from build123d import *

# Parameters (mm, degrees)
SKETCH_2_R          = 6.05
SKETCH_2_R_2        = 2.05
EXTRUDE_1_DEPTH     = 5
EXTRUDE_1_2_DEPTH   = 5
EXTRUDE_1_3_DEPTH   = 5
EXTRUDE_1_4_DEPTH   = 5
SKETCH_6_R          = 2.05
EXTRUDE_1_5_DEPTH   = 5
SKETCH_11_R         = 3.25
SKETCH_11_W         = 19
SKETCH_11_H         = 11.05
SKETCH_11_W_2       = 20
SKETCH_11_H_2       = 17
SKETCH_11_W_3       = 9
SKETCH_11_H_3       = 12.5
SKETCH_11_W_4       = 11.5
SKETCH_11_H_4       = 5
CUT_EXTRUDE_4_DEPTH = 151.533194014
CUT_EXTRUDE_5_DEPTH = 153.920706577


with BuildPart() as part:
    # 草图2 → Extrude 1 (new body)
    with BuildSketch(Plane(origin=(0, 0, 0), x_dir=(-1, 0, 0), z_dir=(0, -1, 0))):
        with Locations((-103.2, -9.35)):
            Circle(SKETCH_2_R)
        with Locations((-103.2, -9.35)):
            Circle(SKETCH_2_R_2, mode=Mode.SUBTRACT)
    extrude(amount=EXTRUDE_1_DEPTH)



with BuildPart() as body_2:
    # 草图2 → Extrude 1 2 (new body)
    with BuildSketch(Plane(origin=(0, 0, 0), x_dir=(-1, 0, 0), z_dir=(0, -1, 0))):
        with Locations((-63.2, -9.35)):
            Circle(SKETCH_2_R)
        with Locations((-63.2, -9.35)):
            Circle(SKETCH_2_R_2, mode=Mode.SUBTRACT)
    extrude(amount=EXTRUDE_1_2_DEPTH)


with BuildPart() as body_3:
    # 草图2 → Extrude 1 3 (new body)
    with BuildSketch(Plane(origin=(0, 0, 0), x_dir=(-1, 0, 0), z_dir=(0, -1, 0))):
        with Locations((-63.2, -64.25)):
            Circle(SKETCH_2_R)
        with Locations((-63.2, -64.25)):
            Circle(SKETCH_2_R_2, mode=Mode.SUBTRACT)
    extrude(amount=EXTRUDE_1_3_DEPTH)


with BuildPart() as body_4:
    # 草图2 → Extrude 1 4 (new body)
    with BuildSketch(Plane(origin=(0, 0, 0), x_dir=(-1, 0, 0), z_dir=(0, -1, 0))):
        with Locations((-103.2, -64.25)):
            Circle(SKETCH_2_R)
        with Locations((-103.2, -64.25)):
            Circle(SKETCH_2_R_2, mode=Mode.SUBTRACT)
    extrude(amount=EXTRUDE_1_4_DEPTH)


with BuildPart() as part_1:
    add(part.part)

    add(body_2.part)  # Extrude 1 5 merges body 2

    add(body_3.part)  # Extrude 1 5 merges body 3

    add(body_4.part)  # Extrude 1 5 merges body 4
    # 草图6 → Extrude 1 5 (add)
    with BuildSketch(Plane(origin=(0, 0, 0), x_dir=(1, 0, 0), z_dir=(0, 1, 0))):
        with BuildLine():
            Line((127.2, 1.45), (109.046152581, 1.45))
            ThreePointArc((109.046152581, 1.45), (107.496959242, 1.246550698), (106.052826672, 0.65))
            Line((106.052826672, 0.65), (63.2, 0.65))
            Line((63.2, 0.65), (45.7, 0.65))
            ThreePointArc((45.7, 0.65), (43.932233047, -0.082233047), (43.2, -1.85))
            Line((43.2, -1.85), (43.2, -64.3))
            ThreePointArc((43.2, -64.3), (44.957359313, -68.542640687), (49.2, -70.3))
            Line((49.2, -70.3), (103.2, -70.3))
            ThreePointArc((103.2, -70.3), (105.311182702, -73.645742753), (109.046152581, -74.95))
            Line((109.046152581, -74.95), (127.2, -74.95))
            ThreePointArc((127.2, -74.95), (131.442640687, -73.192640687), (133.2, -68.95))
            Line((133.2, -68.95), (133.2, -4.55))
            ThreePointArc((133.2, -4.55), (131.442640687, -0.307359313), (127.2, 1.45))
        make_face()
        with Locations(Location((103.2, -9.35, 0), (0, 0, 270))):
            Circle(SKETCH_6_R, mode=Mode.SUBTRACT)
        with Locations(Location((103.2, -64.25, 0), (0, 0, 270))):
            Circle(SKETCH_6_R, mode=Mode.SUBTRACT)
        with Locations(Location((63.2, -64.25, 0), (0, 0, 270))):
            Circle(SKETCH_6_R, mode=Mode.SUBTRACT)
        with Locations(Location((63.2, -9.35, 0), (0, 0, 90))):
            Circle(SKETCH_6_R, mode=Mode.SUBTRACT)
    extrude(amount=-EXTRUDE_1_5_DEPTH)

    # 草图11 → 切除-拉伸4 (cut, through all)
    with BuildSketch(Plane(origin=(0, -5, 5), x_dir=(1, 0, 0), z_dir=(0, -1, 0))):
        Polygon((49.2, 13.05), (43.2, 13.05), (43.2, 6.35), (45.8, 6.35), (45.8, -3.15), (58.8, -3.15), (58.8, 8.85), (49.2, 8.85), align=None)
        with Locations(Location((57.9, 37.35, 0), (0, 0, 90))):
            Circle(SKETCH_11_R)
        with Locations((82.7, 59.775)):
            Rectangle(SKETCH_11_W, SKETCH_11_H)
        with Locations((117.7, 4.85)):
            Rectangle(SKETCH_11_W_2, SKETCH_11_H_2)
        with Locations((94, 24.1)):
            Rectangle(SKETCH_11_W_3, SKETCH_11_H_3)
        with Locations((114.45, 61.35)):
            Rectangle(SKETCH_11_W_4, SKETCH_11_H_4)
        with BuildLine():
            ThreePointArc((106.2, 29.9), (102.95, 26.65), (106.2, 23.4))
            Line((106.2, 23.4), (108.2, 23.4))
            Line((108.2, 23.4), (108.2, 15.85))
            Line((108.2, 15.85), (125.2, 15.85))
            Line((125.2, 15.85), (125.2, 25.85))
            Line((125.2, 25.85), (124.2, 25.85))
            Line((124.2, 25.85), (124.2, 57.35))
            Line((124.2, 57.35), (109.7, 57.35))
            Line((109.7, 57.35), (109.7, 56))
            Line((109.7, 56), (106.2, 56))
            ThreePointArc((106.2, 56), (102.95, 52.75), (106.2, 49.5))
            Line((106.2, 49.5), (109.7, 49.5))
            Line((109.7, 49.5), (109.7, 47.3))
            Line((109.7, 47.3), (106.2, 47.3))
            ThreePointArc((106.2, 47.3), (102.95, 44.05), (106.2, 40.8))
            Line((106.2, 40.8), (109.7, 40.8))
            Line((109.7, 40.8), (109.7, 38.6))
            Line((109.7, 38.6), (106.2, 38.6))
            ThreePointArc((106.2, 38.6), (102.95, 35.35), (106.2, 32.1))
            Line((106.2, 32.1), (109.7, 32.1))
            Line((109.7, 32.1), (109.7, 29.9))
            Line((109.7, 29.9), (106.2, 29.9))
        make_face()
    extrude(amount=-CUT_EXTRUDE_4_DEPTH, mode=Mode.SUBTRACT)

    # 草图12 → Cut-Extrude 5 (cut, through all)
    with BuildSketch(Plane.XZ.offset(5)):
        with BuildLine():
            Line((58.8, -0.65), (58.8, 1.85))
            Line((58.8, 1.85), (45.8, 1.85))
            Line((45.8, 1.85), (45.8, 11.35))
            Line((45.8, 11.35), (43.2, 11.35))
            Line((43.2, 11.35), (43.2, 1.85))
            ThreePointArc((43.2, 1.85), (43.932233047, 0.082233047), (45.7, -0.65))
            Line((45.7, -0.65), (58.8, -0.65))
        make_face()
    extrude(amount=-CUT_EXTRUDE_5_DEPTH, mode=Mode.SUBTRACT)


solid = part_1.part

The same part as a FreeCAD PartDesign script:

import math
import FreeCAD as App
import Part
import Sketcher


def add_polygon(sketch, points):
    """Adds a closed chain of lines whose ends are joined by coincident constraints."""
    first, n = sketch.GeometryCount, len(points)
    for a, b in zip(points, points[1:] + points[:1]):
        sketch.addGeometry(Part.LineSegment(App.Vector(*a, 0), App.Vector(*b, 0)), False)
    for i in range(n):
        sketch.addConstraint(Sketcher.Constraint("Coincident", first + i, 2, first + (i + 1) % n, 1))

doc = App.newDocument("Part")
params = doc.addObject("Spreadsheet::Sheet", "Params")
for row, (alias, value) in enumerate([
    ("sketch1_diameter", "12.1 mm"),
    ("sketch1_diameter2", "4.1 mm"),
    ("pad1_length", "5 mm"),
    ("sketch2_diameter", "12.1 mm"),
    ("sketch2_diameter2", "4.1 mm"),
    ("pad2_length", "5 mm"),
    ("sketch3_diameter", "12.1 mm"),
    ("sketch3_diameter2", "4.1 mm"),
    ("pad3_length", "5 mm"),
    ("sketch4_diameter", "12.1 mm"),
    ("sketch4_diameter2", "4.1 mm"),
    ("pad4_length", "5 mm"),
    ("sketch5_radius", "6 mm"),
    ("sketch5_diameter", "4.1 mm"),
    ("sketch5_radius2", "2.5 mm"),
    ("sketch5_width", "54 mm"),
    ("sketch5_height", "64.4 mm"),
    ("pad5_length", "5 mm"),
    ("sketch6_diameter", "6.5 mm"),
    ("sketch6_width", "6 mm"),
    ("sketch6_width2", "13 mm"),
    ("sketch6_width3", "19 mm"),
    ("sketch6_width4", "20 mm"),
    ("sketch7_radius", "2.5 mm"),
    ("sketch7_width", "13 mm"),
    ("sketch7_width2", "2.6 mm"),
    ("sketch7_height", "9.5 mm"),
], start=1):
    params.set(f"A{row}", alias)
    params.set(f"B{row}", "=" + value)
    params.setAlias(f"B{row}", alias)

body = doc.addObject("PartDesign::Body", "Body")

# Sketch on XZ plane
sketch1 = body.newObject("Sketcher::SketchObject", "Sketch")
sketch1.AttachmentSupport = (doc.getObject("XZ_Plane"), [""])
sketch1.MapMode = "FlatFace"
sketch1.addGeometry([
    Part.Circle(App.Vector(103.2, 9.35, 0), App.Vector(0, 0, 1), 6.05),
    Part.Circle(App.Vector(103.2, 9.35, 0), App.Vector(0, 0, 1), 2.05),
], False)
sketch1.addConstraint([
    Sketcher.Constraint("Coincident", 1, 3, 0, 3),
    Sketcher.Constraint("Diameter", 0, 12.1),
    Sketcher.Constraint("Diameter", 1, 4.1),
    Sketcher.Constraint("DistanceX", -1, 1, 0, 3, 103.2),
    Sketcher.Constraint("DistanceY", -1, 1, 0, 3, 9.35),
])
sketch1.setExpression("Constraints[1]", "Params.sketch1_diameter")
sketch1.setExpression("Constraints[2]", "Params.sketch1_diameter2")
pad1 = body.newObject("PartDesign::Pad", "Pad")
pad1.Profile = sketch1
pad1.setExpression("Length", "Params.pad1_length")
body2 = doc.addObject("PartDesign::Body", "Body001")

# Sketch on XZ plane
sketch2 = body2.newObject("Sketcher::SketchObject", "Sketch001")
sketch2.AttachmentSupport = (doc.getObject("XZ_Plane001"), [""])
sketch2.MapMode = "FlatFace"
sketch2.addGeometry([
    Part.Circle(App.Vector(63.2, 9.35, 0), App.Vector(0, 0, 1), 6.05),
    Part.Circle(App.Vector(63.2, 9.35, 0), App.Vector(0, 0, 1), 2.05),
], False)
sketch2.addConstraint([
    Sketcher.Constraint("Coincident", 1, 3, 0, 3),
    Sketcher.Constraint("Diameter", 0, 12.1),
    Sketcher.Constraint("Diameter", 1, 4.1),
    Sketcher.Constraint("DistanceX", -1, 1, 0, 3, 63.2),
    Sketcher.Constraint("DistanceY", -1, 1, 0, 3, 9.35),
])
sketch2.setExpression("Constraints[1]", "Params.sketch2_diameter")
sketch2.setExpression("Constraints[2]", "Params.sketch2_diameter2")
pad2 = body2.newObject("PartDesign::Pad", "Pad001")
pad2.Profile = sketch2
pad2.setExpression("Length", "Params.pad2_length")
body3 = doc.addObject("PartDesign::Body", "Body002")

# Sketch on XZ plane
sketch3 = body3.newObject("Sketcher::SketchObject", "Sketch002")
sketch3.AttachmentSupport = (doc.getObject("XZ_Plane002"), [""])
sketch3.MapMode = "FlatFace"
sketch3.addGeometry([
    Part.Circle(App.Vector(63.2, 64.25, 0), App.Vector(0, 0, 1), 6.05),
    Part.Circle(App.Vector(63.2, 64.25, 0), App.Vector(0, 0, 1), 2.05),
], False)
sketch3.addConstraint([
    Sketcher.Constraint("Coincident", 1, 3, 0, 3),
    Sketcher.Constraint("Diameter", 0, 12.1),
    Sketcher.Constraint("Diameter", 1, 4.1),
    Sketcher.Constraint("DistanceX", -1, 1, 0, 3, 63.2),
    Sketcher.Constraint("DistanceY", -1, 1, 0, 3, 64.25),
])
sketch3.setExpression("Constraints[1]", "Params.sketch3_diameter")
sketch3.setExpression("Constraints[2]", "Params.sketch3_diameter2")
pad3 = body3.newObject("PartDesign::Pad", "Pad002")
pad3.Profile = sketch3
pad3.setExpression("Length", "Params.pad3_length")
body4 = doc.addObject("PartDesign::Body", "Body003")

# Sketch on XZ plane
sketch4 = body4.newObject("Sketcher::SketchObject", "Sketch003")
sketch4.AttachmentSupport = (doc.getObject("XZ_Plane003"), [""])
sketch4.MapMode = "FlatFace"
sketch4.addGeometry([
    Part.Circle(App.Vector(103.2, 64.25, 0), App.Vector(0, 0, 1), 6.05),
    Part.Circle(App.Vector(103.2, 64.25, 0), App.Vector(0, 0, 1), 2.05),
], False)
sketch4.addConstraint([
    Sketcher.Constraint("Coincident", 1, 3, 0, 3),
    Sketcher.Constraint("Diameter", 0, 12.1),
    Sketcher.Constraint("Diameter", 1, 4.1),
    Sketcher.Constraint("DistanceX", -1, 1, 0, 3, 103.2),
    Sketcher.Constraint("DistanceY", -1, 1, 0, 3, 64.25),
])
sketch4.setExpression("Constraints[1]", "Params.sketch4_diameter")
sketch4.setExpression("Constraints[2]", "Params.sketch4_diameter2")
pad4 = body4.newObject("PartDesign::Pad", "Pad003")
pad4.Profile = sketch4
pad4.setExpression("Length", "Params.pad4_length")
body.AllowCompound = True
doc.recompute()

boolean = body.newObject("PartDesign::Boolean", "Boolean")
boolean.Type = "Fuse"
boolean.addObjects([body2])
doc.recompute()

boolean2 = body.newObject("PartDesign::Boolean", "Boolean001")
boolean2.Type = "Fuse"
boolean2.addObjects([body3])
doc.recompute()

boolean3 = body.newObject("PartDesign::Boolean", "Boolean002")
boolean3.Type = "Fuse"
boolean3.addObjects([body4])

# Sketch on XZ plane
sketch5 = body.newObject("Sketcher::SketchObject", "Sketch004")
sketch5.AttachmentSupport = (doc.getObject("XZ_Plane"), [""])
sketch5.MapMode = "FlatFace"
sketch5.addGeometry([
    Part.LineSegment(App.Vector(127.2, -1.45, 0), App.Vector(109.046153, -1.45, 0)),  # 0
    Part.ArcOfCircle(Part.Circle(App.Vector(109.046153, 4.55, 0), App.Vector(0, 0, 1), 6), math.radians(-119.926435), math.radians(-90)),  # 1
    Part.LineSegment(App.Vector(106.052827, -0.65, 0), App.Vector(45.7, -0.65, 0)),  # 2
    Part.ArcOfCircle(Part.Circle(App.Vector(45.7, 1.85, 0), App.Vector(0, 0, 1), 2.5), math.radians(180), math.radians(270)),  # 3
    Part.LineSegment(App.Vector(43.2, 1.85, 0), App.Vector(43.2, 64.3, 0)),  # 4
    Part.ArcOfCircle(Part.Circle(App.Vector(49.2, 64.3, 0), App.Vector(0, 0, 1), 6), math.radians(90), math.radians(180)),  # 5
    Part.LineSegment(App.Vector(49.2, 70.3, 0), App.Vector(103.2, 70.3, 0)),  # 6
    Part.ArcOfCircle(Part.Circle(App.Vector(109.046153, 68.95, 0), App.Vector(0, 0, 1), 6), math.radians(90), math.radians(166.997122)),  # 7
    Part.LineSegment(App.Vector(109.046153, 74.95, 0), App.Vector(127.2, 74.95, 0)),  # 8
    Part.ArcOfCircle(Part.Circle(App.Vector(127.2, 68.95, 0), App.Vector(0, 0, 1), 6), math.radians(0), math.radians(90)),  # 9
    Part.LineSegment(App.Vector(133.2, 68.95, 0), App.Vector(133.2, 4.55, 0)),  # 10
    Part.ArcOfCircle(Part.Circle(App.Vector(127.2, 4.55, 0), App.Vector(0, 0, 1), 6), math.radians(-90), math.radians(0)),  # 11
    Part.Circle(App.Vector(63.2, 64.25, 0), App.Vector(0, 0, 1), 2.05),  # 12
    Part.Circle(App.Vector(103.2, 64.25, 0), App.Vector(0, 0, 1), 2.05),  # 13
    Part.Circle(App.Vector(63.2, 9.35, 0), App.Vector(0, 0, 1), 2.05),  # 14
    Part.Circle(App.Vector(103.2, 9.35, 0), App.Vector(0, 0, 1), 2.05),  # 15
], False)
sketch5.addConstraint([
    Sketcher.Constraint("Tangent", 0, 2, 1, 2),
    Sketcher.Constraint("Coincident", 1, 1, 2, 1),
    Sketcher.Constraint("Tangent", 2, 2, 3, 2),
    Sketcher.Constraint("Tangent", 3, 1, 4, 1),
    Sketcher.Constraint("Tangent", 4, 2, 5, 2),
    Sketcher.Constraint("Tangent", 5, 1, 6, 1),
    Sketcher.Constraint("Coincident", 6, 2, 7, 2),
    Sketcher.Constraint("Tangent", 7, 1, 8, 1),
    Sketcher.Constraint("Tangent", 8, 2, 9, 2),
    Sketcher.Constraint("Tangent", 9, 1, 10, 1),
    Sketcher.Constraint("Tangent", 10, 2, 11, 2),
    Sketcher.Constraint("Tangent", 11, 1, 0, 1),
    Sketcher.Constraint("Horizontal", 0),
    Sketcher.Constraint("Horizontal", 2),
    Sketcher.Constraint("Vertical", 4),
    Sketcher.Constraint("Horizontal", 6),
    Sketcher.Constraint("Horizontal", 8),
    Sketcher.Constraint("Vertical", 10),
    Sketcher.Constraint("Equal", 1, 5),
    Sketcher.Constraint("Equal", 5, 7),
    Sketcher.Constraint("Equal", 7, 9),
    Sketcher.Constraint("Equal", 9, 11),
    Sketcher.Constraint("Equal", 12, 13),
    Sketcher.Constraint("Equal", 13, 14),
    Sketcher.Constraint("Equal", 14, 15),
    Sketcher.Constraint("Horizontal", 12, 3, 13, 3),
    Sketcher.Constraint("Horizontal", 14, 3, 15, 3),
    Sketcher.Constraint("Vertical", 1, 3, 7, 3),
    Sketcher.Constraint("Vertical", 12, 3, 14, 3),
    Sketcher.Constraint("Vertical", 13, 3, 15, 3),
    Sketcher.Constraint("Vertical", 15, 3, 6, 2),
    Sketcher.Constraint("Radius", 1, 6.0),
    Sketcher.Constraint("Diameter", 12, 4.1),
    Sketcher.Constraint("Radius", 3, 2.5),
    Sketcher.Constraint("DistanceX", 6, 1, 6, 2, 54.0),
    Sketcher.Constraint("DistanceY", 10, 2, 10, 1, 64.4),
    Sketcher.Constraint("DistanceX", 5, 3, 9, 3, 78.0),
    Sketcher.Constraint("DistanceX", 5, 3, 12, 3, 14.0),
    Sketcher.Constraint("DistanceY", 1, 1, 15, 3, 10.0),
    Sketcher.Constraint("DistanceY", 4, 1, 4, 2, 62.45),
    Sketcher.Constraint("DistanceX", -1, 1, 3, 3, 45.7),
    Sketcher.Constraint("DistanceY", -1, 1, 5, 3, 64.3),
    Sketcher.Constraint("DistanceY", 3, 3, 1, 3, 2.7),
    Sketcher.Constraint("DistanceY", 12, 3, 7, 3, 4.7),
])
sketch5.setExpression("Constraints[31]", "Params.sketch5_radius")
sketch5.setExpression("Constraints[32]", "Params.sketch5_diameter")
sketch5.setExpression("Constraints[33]", "Params.sketch5_radius2")
sketch5.setExpression("Constraints[34]", "Params.sketch5_width")
sketch5.setExpression("Constraints[35]", "Params.sketch5_height")
pad5 = body.newObject("PartDesign::Pad", "Pad004")
pad5.Profile = sketch5
pad5.setExpression("Length", "Params.pad5_length")

# Sketch on XZ plane
sketch6 = body.newObject("Sketcher::SketchObject", "Sketch005")
sketch6.AttachmentSupport = (doc.getObject("XZ_Plane"), [""])
sketch6.MapMode = "FlatFace"
sketch6.AttachmentOffset = App.Placement(App.Vector(0, 0, 5), App.Rotation())
add_polygon(sketch6, [(49.2, 18.05), (43.2, 18.05), (43.2, 11.35), (45.8, 11.35), (45.8, 1.85), (58.8, 1.85), (58.8, 13.85), (49.2, 13.85)])  # lines 0-7
sketch6.addGeometry(Part.Circle(App.Vector(57.9, 42.35, 0), App.Vector(0, 0, 1), 3.25), False)  # 8
add_polygon(sketch6, [(73.2, 70.3), (73.2, 59.25), (92.2, 59.25), (92.2, 70.3)])  # lines 9-12
add_polygon(sketch6, [(107.7, 18.35), (107.7, 1.35), (127.7, 1.35), (127.7, 18.35)])  # lines 13-16
add_polygon(sketch6, [(89.5, 35.35), (89.5, 22.85), (98.5, 22.85), (98.5, 35.35)])  # lines 17-20
add_polygon(sketch6, [(108.7, 68.85), (108.7, 63.85), (120.2, 63.85), (120.2, 68.85)])  # lines 21-24
sketch6.addGeometry(Part.ArcOfCircle(Part.Circle(App.Vector(106.2, 31.65, 0), App.Vector(0, 0, 1), 3.25), math.radians(90), math.radians(270)), False)  # 25
sketch6.addGeometry(Part.LineSegment(App.Vector(106.2, 28.4, 0), App.Vector(108.2, 28.4, 0)), False)  # 26
sketch6.addGeometry(Part.LineSegment(App.Vector(108.2, 28.4, 0), App.Vector(108.2, 20.85, 0)), False)  # 27
sketch6.addGeometry(Part.LineSegment(App.Vector(108.2, 20.85, 0), App.Vector(125.2, 20.85, 0)), False)  # 28
sketch6.addGeometry(Part.LineSegment(App.Vector(125.2, 20.85, 0), App.Vector(125.2, 30.85, 0)), False)  # 29
sketch6.addGeometry(Part.LineSegment(App.Vector(125.2, 30.85, 0), App.Vector(124.2, 30.85, 0)), False)  # 30
sketch6.addGeometry(Part.LineSegment(App.Vector(124.2, 30.85, 0), App.Vector(124.2, 62.35, 0)), False)  # 31
sketch6.addGeometry(Part.LineSegment(App.Vector(124.2, 62.35, 0), App.Vector(109.7, 62.35, 0)), False)  # 32
sketch6.addGeometry(Part.LineSegment(App.Vector(109.7, 62.35, 0), App.Vector(109.7, 61, 0)), False)  # 33
sketch6.addGeometry(Part.LineSegment(App.Vector(109.7, 61, 0), App.Vector(106.2, 61, 0)), False)  # 34
sketch6.addGeometry(Part.ArcOfCircle(Part.Circle(App.Vector(106.2, 57.75, 0), App.Vector(0, 0, 1), 3.25), math.radians(90), math.radians(270)), False)  # 35
sketch6.addGeometry(Part.LineSegment(App.Vector(106.2, 54.5, 0), App.Vector(109.7, 54.5, 0)), False)  # 36
sketch6.addGeometry(Part.LineSegment(App.Vector(109.7, 54.5, 0), App.Vector(109.7, 52.3, 0)), False)  # 37
sketch6.addGeometry(Part.LineSegment(App.Vector(109.7, 52.3, 0), App.Vector(106.2, 52.3, 0)), False)  # 38
sketch6.addGeometry(Part.ArcOfCircle(Part.Circle(App.Vector(106.2, 49.05, 0), App.Vector(0, 0, 1), 3.25), math.radians(90), math.radians(270)), False)  # 39
sketch6.addGeometry(Part.LineSegment(App.Vector(106.2, 45.8, 0), App.Vector(109.7, 45.8, 0)), False)  # 40
sketch6.addGeometry(Part.LineSegment(App.Vector(109.7, 45.8, 0), App.Vector(109.7, 43.6, 0)), False)  # 41
sketch6.addGeometry(Part.LineSegment(App.Vector(109.7, 43.6, 0), App.Vector(106.2, 43.6, 0)), False)  # 42
sketch6.addGeometry(Part.ArcOfCircle(Part.Circle(App.Vector(106.2, 40.35, 0), App.Vector(0, 0, 1), 3.25), math.radians(90), math.radians(270)), False)  # 43
sketch6.addGeometry(Part.LineSegment(App.Vector(106.2, 37.1, 0), App.Vector(109.7, 37.1, 0)), False)  # 44
sketch6.addGeometry(Part.LineSegment(App.Vector(109.7, 37.1, 0), App.Vector(109.7, 34.9, 0)), False)  # 45
sketch6.addGeometry(Part.LineSegment(App.Vector(109.7, 34.9, 0), App.Vector(106.2, 34.9, 0)), False)  # 46
sketch6.addConstraint([
    Sketcher.Constraint("Tangent", 25, 2, 26, 1),
    Sketcher.Constraint("Coincident", 26, 2, 27, 1),
    Sketcher.Constraint("Coincident", 27, 2, 28, 1),
    Sketcher.Constraint("Coincident", 28, 2, 29, 1),
    Sketcher.Constraint("Coincident", 29, 2, 30, 1),
    Sketcher.Constraint("Coincident", 30, 2, 31, 1),
    Sketcher.Constraint("Coincident", 31, 2, 32, 1),
    Sketcher.Constraint("Coincident", 32, 2, 33, 1),
    Sketcher.Constraint("Coincident", 33, 2, 34, 1),
    Sketcher.Constraint("Tangent", 34, 2, 35, 1),
    Sketcher.Constraint("Tangent", 35, 2, 36, 1),
    Sketcher.Constraint("Coincident", 36, 2, 37, 1),
    Sketcher.Constraint("Coincident", 37, 2, 38, 1),
    Sketcher.Constraint("Tangent", 38, 2, 39, 1),
    Sketcher.Constraint("Tangent", 39, 2, 40, 1),
    Sketcher.Constraint("Coincident", 40, 2, 41, 1),
    Sketcher.Constraint("Coincident", 41, 2, 42, 1),
    Sketcher.Constraint("Tangent", 42, 2, 43, 1),
    Sketcher.Constraint("Tangent", 43, 2, 44, 1),
    Sketcher.Constraint("Coincident", 44, 2, 45, 1),
    Sketcher.Constraint("Coincident", 45, 2, 46, 1),
    Sketcher.Constraint("Tangent", 46, 2, 25, 1),
    Sketcher.Constraint("Horizontal", 0),
    Sketcher.Constraint("Vertical", 1),
    Sketcher.Constraint("Horizontal", 2),
    Sketcher.Constraint("Vertical", 3),
    Sketcher.Constraint("Horizontal", 4),
    Sketcher.Constraint("Vertical", 5),
    Sketcher.Constraint("Horizontal", 6),
    Sketcher.Constraint("Vertical", 7),
    Sketcher.Constraint("Vertical", 9),
    Sketcher.Constraint("Horizontal", 10),
    Sketcher.Constraint("Vertical", 11),
    Sketcher.Constraint("Horizontal", 12),
    Sketcher.Constraint("Vertical", 13),
    Sketcher.Constraint("Horizontal", 14),
    Sketcher.Constraint("Vertical", 15),
    Sketcher.Constraint("Horizontal", 16),
    Sketcher.Constraint("Vertical", 17),
    Sketcher.Constraint("Horizontal", 18),
    Sketcher.Constraint("Vertical", 19),
    Sketcher.Constraint("Horizontal", 20),
    Sketcher.Constraint("Vertical", 21),
    Sketcher.Constraint("Horizontal", 22),
    Sketcher.Constraint("Vertical", 23),
    Sketcher.Constraint("Horizontal", 24),
    Sketcher.Constraint("Horizontal", 26),
    Sketcher.Constraint("Vertical", 27),
    Sketcher.Constraint("Horizontal", 28),
    Sketcher.Constraint("Vertical", 29),
    Sketcher.Constraint("Horizontal", 30),
    Sketcher.Constraint("Vertical", 31),
    Sketcher.Constraint("Horizontal", 32),
    Sketcher.Constraint("Vertical", 33),
    Sketcher.Constraint("Horizontal", 34),
    Sketcher.Constraint("Horizontal", 36),
    Sketcher.Constraint("Vertical", 37),
    Sketcher.Constraint("Horizontal", 38),
    Sketcher.Constraint("Horizontal", 40),
    Sketcher.Constraint("Vertical", 41),
    Sketcher.Constraint("Horizontal", 42),
    Sketcher.Constraint("Horizontal", 44),
    Sketcher.Constraint("Vertical", 45),
    Sketcher.Constraint("Horizontal", 46),
    Sketcher.Constraint("Equal", 8, 25),
    Sketcher.Constraint("Equal", 25, 35),
    Sketcher.Constraint("Equal", 35, 39),
    Sketcher.Constraint("Equal", 39, 43),
    Sketcher.Constraint("Vertical", 25, 3, 35, 3),
    Sketcher.Constraint("Vertical", 35, 3, 39, 3),
    Sketcher.Constraint("Vertical", 39, 3, 43, 3),
    Sketcher.Constraint("Vertical", 33, 2, 36, 2),
    Sketcher.Constraint("Vertical", 37, 2, 40, 2),
    Sketcher.Constraint("Vertical", 41, 2, 44, 2),
    Sketcher.Constraint("Equal", 28, 13),
    Sketcher.Constraint("Equal", 37, 41),
    Sketcher.Constraint("Equal", 41, 45),
    Sketcher.Constraint("Diameter", 8, 6.5),
    Sketcher.Constraint("DistanceX", 0, 2, 0, 1, 6.0),
    Sketcher.Constraint("DistanceX", 4, 1, 4, 2, 13.0),
    Sketcher.Constraint("DistanceX", 10, 1, 10, 2, 19.0),
    Sketcher.Constraint("DistanceX", 14, 1, 14, 2, 20.0),
    Sketcher.Constraint("DistanceX", 18, 1, 18, 2, 9.0),
    Sketcher.Constraint("DistanceX", 26, 1, 26, 2, 2.0),
    Sketcher.Constraint("DistanceX", 28, 1, 28, 2, 17.0),
    Sketcher.Constraint("DistanceX", 30, 2, 30, 1, 1.0),
    Sketcher.Constraint("DistanceY", 5, 1, 5, 2, 12.0),
    Sketcher.Constraint("DistanceY", 21, 2, 21, 1, 5.0),
    Sketcher.Constraint("DistanceY", 29, 1, 29, 2, 10.0),
    Sketcher.Constraint("DistanceX", 2, 1, 2, 2, 2.6),
    Sketcher.Constraint("DistanceX", 22, 1, 22, 2, 11.5),
    Sketcher.Constraint("DistanceX", 32, 2, 32, 1, 14.5),
    Sketcher.Constraint("DistanceY", 1, 2, 1, 1, 6.7),
    Sketcher.Constraint("DistanceY", 3, 2, 3, 1, 9.5),
    Sketcher.Constraint("DistanceY", 17, 2, 17, 1, 12.5),
    Sketcher.Constraint("DistanceY", 31, 1, 31, 2, 31.5),
    Sketcher.Constraint("DistanceY", 37, 2, 37, 1, 2.2),
    Sketcher.Constraint("DistanceY", -1, 1, 33, 2, 61.0),
    Sketcher.Constraint("DistanceY", 43, 3, 8, 3, 2.0),
    Sketcher.Constraint("DistanceX", 0, 2, 25, 3, 63.0),
    Sketcher.Constraint("DistanceY", 0, 2, 39, 3, 31.0),
    Sketcher.Constraint("DistanceX", 9, 2, 35, 3, 33.0),
    Sketcher.Constraint("DistanceY", 13, 2, 43, 3, 39.0),
    Sketcher.Constraint("DistanceY", 19, 2, 43, 3, 5.0),
    Sketcher.Constraint("DistanceX", 35, 3, 22, 2, 14.0),
    Sketcher.Constraint("DistanceY", 27, 2, 18, 2, 2.0),
    Sketcher.Constraint("DistanceY", 9, 2, 9, 1, 11.05),
    Sketcher.Constraint("DistanceX", -1, 1, 8, 3, 57.9),
    Sketcher.Constraint("DistanceX", -1, 1, 25, 3, 106.2),
    Sketcher.Constraint("DistanceY", -1, 1, 11, 2, 70.3),
    Sketcher.Constraint("DistanceX", -1, 1, 13, 2, 107.7),
    Sketcher.Constraint("DistanceX", -1, 1, 17, 2, 89.5),
    Sketcher.Constraint("DistanceY", 35, 3, 21, 2, 6.1),
])
sketch6.setExpression("Constraints[101]", "Params.sketch6_diameter")
sketch6.setExpression("Constraints[102]", "Params.sketch6_width")
sketch6.setExpression("Constraints[103]", "Params.sketch6_width2")
sketch6.setExpression("Constraints[104]", "Params.sketch6_width3")
sketch6.setExpression("Constraints[105]", "Params.sketch6_width4")
pocket1 = body.newObject("PartDesign::Pocket", "Pocket")
pocket1.Profile = sketch6
pocket1.Type = "ThroughAll"

# Sketch on XZ plane
sketch7 = body.newObject("Sketcher::SketchObject", "Sketch006")
sketch7.AttachmentSupport = (doc.getObject("XZ_Plane"), [""])
sketch7.MapMode = "FlatFace"
sketch7.AttachmentOffset = App.Placement(App.Vector(0, 0, 5), App.Rotation())
sketch7.addGeometry([
    Part.LineSegment(App.Vector(58.8, -0.65, 0), App.Vector(58.8, 1.85, 0)),  # 0
    Part.LineSegment(App.Vector(58.8, 1.85, 0), App.Vector(45.8, 1.85, 0)),  # 1
    Part.LineSegment(App.Vector(45.8, 1.85, 0), App.Vector(45.8, 11.35, 0)),  # 2
    Part.LineSegment(App.Vector(45.8, 11.35, 0), App.Vector(43.2, 11.35, 0)),  # 3
    Part.LineSegment(App.Vector(43.2, 11.35, 0), App.Vector(43.2, 1.85, 0)),  # 4
    Part.ArcOfCircle(Part.Circle(App.Vector(45.7, 1.85, 0), App.Vector(0, 0, 1), 2.5), math.radians(180), math.radians(270)),  # 5
    Part.LineSegment(App.Vector(45.7, -0.65, 0), App.Vector(58.8, -0.65, 0)),  # 6
], False)
sketch7.addConstraint([
    Sketcher.Constraint("Coincident", 0, 2, 1, 1),
    Sketcher.Constraint("Coincident", 1, 2, 2, 1),
    Sketcher.Constraint("Coincident", 2, 2, 3, 1),
    Sketcher.Constraint("Coincident", 3, 2, 4, 1),
    Sketcher.Constraint("Tangent", 4, 2, 5, 1),
    Sketcher.Constraint("Tangent", 5, 2, 6, 1),
    Sketcher.Constraint("Coincident", 6, 2, 0, 1),
    Sketcher.Constraint("Vertical", 0),
    Sketcher.Constraint("Horizontal", 1),
    Sketcher.Constraint("Vertical", 2),
    Sketcher.Constraint("Horizontal", 3),
    Sketcher.Constraint("Vertical", 4),
    Sketcher.Constraint("Horizontal", 6),
    Sketcher.Constraint("Horizontal", 5, 3, 0, 2),
    Sketcher.Constraint("Radius", 5, 2.5),
    Sketcher.Constraint("DistanceX", 1, 2, 1, 1, 13.0),
    Sketcher.Constraint("DistanceX", 3, 2, 3, 1, 2.6),
    Sketcher.Constraint("DistanceY", 2, 1, 2, 2, 9.5),
    Sketcher.Constraint("DistanceX", -1, 1, 5, 3, 45.7),
    Sketcher.Constraint("DistanceY", -1, 1, 5, 3, 1.85),
])
sketch7.setExpression("Constraints[14]", "Params.sketch7_radius")
sketch7.setExpression("Constraints[15]", "Params.sketch7_width")
sketch7.setExpression("Constraints[16]", "Params.sketch7_width2")
sketch7.setExpression("Constraints[17]", "Params.sketch7_height")
pocket2 = body.newObject("PartDesign::Pocket", "Pocket001")
pocket2.Profile = sketch7
pocket2.Type = "ThroughAll"

doc.recompute()
